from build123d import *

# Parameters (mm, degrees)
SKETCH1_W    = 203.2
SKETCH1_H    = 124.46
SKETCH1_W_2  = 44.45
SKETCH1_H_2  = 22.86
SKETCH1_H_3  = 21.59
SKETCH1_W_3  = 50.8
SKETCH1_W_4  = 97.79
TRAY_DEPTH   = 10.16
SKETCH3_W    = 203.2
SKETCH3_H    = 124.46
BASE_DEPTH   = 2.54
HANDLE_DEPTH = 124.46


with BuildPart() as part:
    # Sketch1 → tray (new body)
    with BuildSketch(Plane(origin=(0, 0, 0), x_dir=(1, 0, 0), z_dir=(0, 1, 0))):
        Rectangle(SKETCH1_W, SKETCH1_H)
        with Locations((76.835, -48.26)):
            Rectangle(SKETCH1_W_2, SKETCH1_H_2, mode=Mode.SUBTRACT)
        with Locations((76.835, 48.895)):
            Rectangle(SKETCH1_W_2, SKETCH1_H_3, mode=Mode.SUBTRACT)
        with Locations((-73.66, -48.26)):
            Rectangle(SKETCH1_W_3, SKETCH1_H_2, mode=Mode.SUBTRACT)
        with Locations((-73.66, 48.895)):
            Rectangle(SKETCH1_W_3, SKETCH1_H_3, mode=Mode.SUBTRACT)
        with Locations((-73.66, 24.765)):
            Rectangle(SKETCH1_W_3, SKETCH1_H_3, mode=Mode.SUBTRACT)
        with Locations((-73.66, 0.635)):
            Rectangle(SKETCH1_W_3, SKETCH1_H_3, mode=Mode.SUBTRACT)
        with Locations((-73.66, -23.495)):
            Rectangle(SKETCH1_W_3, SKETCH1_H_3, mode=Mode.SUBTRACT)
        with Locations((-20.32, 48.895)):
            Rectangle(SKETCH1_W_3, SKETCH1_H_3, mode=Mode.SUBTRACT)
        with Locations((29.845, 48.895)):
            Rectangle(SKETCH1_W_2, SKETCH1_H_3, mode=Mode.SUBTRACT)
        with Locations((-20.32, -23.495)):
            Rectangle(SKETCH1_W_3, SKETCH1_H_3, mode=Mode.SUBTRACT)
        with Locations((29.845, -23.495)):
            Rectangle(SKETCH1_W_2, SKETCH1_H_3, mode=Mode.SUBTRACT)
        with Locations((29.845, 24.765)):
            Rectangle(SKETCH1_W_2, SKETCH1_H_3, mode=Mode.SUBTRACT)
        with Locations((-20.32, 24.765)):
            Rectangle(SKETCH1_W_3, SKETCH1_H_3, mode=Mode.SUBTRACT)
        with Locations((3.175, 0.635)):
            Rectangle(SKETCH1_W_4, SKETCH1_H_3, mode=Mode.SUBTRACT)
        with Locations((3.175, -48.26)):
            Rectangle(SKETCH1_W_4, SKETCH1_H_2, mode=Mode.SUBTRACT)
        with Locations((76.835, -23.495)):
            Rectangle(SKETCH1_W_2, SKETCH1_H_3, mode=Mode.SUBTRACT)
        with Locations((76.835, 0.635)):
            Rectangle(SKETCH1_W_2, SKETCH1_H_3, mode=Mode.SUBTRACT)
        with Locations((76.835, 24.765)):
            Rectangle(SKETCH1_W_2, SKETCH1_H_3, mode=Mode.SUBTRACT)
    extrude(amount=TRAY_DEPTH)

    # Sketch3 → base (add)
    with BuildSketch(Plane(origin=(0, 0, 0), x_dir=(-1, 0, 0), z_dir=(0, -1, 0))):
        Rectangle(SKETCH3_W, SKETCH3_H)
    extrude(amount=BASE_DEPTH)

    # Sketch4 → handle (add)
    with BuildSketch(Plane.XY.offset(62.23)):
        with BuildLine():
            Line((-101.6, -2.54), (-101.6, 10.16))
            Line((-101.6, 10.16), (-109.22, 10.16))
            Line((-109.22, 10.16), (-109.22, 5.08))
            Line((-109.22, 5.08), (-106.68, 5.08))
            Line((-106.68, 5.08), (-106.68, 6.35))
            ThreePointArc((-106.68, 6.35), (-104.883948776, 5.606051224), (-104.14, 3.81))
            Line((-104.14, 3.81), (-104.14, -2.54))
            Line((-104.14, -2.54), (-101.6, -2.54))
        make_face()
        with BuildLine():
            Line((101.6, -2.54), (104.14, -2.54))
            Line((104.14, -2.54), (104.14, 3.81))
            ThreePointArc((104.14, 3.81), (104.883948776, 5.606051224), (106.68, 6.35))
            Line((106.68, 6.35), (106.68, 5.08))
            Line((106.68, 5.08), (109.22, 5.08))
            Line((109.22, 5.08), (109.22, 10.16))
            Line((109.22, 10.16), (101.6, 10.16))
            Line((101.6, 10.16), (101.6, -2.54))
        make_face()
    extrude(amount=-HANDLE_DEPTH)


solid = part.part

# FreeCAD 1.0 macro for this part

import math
import FreeCAD as App
import Part
import Sketcher

V = App.Vector
Q = App.Units.Quantity


def add_polygon(sketch, points):
    """Adds a closed chain of lines whose ends are joined by coincident constraints."""
    first, n = sketch.GeometryCount, len(points)
    for a, b in zip(points, points[1:] + points[:1]):
        sketch.addGeometry(Part.LineSegment(App.Vector(*a, 0), App.Vector(*b, 0)), False)
    for i in range(n):
        sketch.addConstraint(Sketcher.Constraint("Coincident", first + i, 2, first + (i + 1) % n, 1))

doc = App.newDocument("Part")
params = doc.addObject("Spreadsheet::Sheet", "Params")
for row, (alias, value) in enumerate([
    ("sketch1_width", "8 in"),
    ("sketch1_width2", "2 in"),
    ("sketch1_height", "4.9 in"),
    ("sketch1_height2", "0.9 in"),
    ("sketch1_width3", "3.85 in"),
    ("pad1_length", "0.4 in"),
    ("sketch2_width", "8 in"),
    ("sketch2_height", "4.9 in"),
    ("pad2_length", "0.1 in"),
    ("sketch3_radius", "0.1 in"),
    ("sketch3_width", "0.3 in"),
    ("sketch3_height", "0.5 in"),
    ("sketch3_height2", "0.2 in"),
    ("sketch3_height3", "0.05 in"),
    ("pad3_length", "4.9 in"),
], start=1):
    params.set(f"A{row}", alias)
    params.set(f"B{row}", "=" + value)
    params.setAlias(f"B{row}", alias)

body = doc.addObject("PartDesign::Body", "Body")

# Sketch on XZ plane
sketch1 = body.newObject("Sketcher::SketchObject", "Sketch")
sketch1.AttachmentSupport = (doc.getObject("XZ_Plane"), [""])
sketch1.MapMode = "FlatFace"
add_polygon(sketch1, [(-102, -62), (-102, 62), (102, 62), (102, -62)])  # lines 0-3
add_polygon(sketch1, [(-48, 60), (-99, 60), (-99, 37), (-48, 37)])  # lines 4-7
add_polygon(sketch1, [(-48, 34), (-99, 34), (-99, 13), (-48, 13)])  # lines 8-11
add_polygon(sketch1, [(5, 34), (-46, 34), (-46, 13), (5, 13)])  # lines 12-15
add_polygon(sketch1, [(52, 60), (-46, 60), (-46, 37), (52, 37)])  # lines 16-19
add_polygon(sketch1, [(99, 60), (55, 60), (55, 37), (99, 37)])  # lines 20-23
add_polygon(sketch1, [(52, 34), (8, 34), (8, 13), (52, 13)])  # lines 24-27
add_polygon(sketch1, [(99, 34), (55, 34), (55, 13), (99, 13)])  # lines 28-31
add_polygon(sketch1, [(-48, 10), (-99, 10), (-99, -11), (-48, -11)])  # lines 32-35
add_polygon(sketch1, [(-48, -14), (-99, -14), (-99, -36), (-48, -36)])  # lines 36-39
add_polygon(sketch1, [(5, -14), (-46, -14), (-46, -36), (5, -36)])  # lines 40-43
add_polygon(sketch1, [(-48, -38), (-99, -38), (-99, -60), (-48, -60)])  # lines 44-47
add_polygon(sketch1, [(5, -38), (-46, -38), (-46, -60), (5, -60)])  # lines 48-51
add_polygon(sketch1, [(52, 10), (-46, 10), (-46, -11), (52, -11)])  # lines 52-55
add_polygon(sketch1, [(52, -14), (8, -14), (8, -36), (52, -36)])  # lines 56-59
add_polygon(sketch1, [(99, 10), (55, 10), (55, -11), (99, -11)])  # lines 60-63
add_polygon(sketch1, [(99, -14), (55, -14), (55, -36), (99, -36)])  # lines 64-67
add_polygon(sketch1, [(52, -38), (8, -38), (8, -60), (52, -60)])  # lines 68-71
add_polygon(sketch1, [(99, -38), (55, -38), (55, -60), (99, -60)])  # lines 72-75
sketch1.addConstraint([
    Sketcher.Constraint("Vertical", 0),
    Sketcher.Constraint("Horizontal", 1),
    Sketcher.Constraint("Vertical", 2),
    Sketcher.Constraint("Horizontal", 3),
    Sketcher.Constraint("Horizontal", 4),
    Sketcher.Constraint("Vertical", 5),
    Sketcher.Constraint("Horizontal", 6),
    Sketcher.Constraint("Vertical", 7),
    Sketcher.Constraint("Horizontal", 8),
    Sketcher.Constraint("Vertical", 9),
    Sketcher.Constraint("Horizontal", 10),
    Sketcher.Constraint("Vertical", 11),
    Sketcher.Constraint("Horizontal", 12),
    Sketcher.Constraint("Vertical", 13),
    Sketcher.Constraint("Horizontal", 14),
    Sketcher.Constraint("Vertical", 15),
    Sketcher.Constraint("Horizontal", 16),
    Sketcher.Constraint("Vertical", 17),
    Sketcher.Constraint("Horizontal", 18),
    Sketcher.Constraint("Vertical", 19),
    Sketcher.Constraint("Horizontal", 20),
    Sketcher.Constraint("Vertical", 21),
    Sketcher.Constraint("Horizontal", 22),
    Sketcher.Constraint("Vertical", 23),
    Sketcher.Constraint("Horizontal", 24),
    Sketcher.Constraint("Vertical", 25),
    Sketcher.Constraint("Horizontal", 26),
    Sketcher.Constraint("Vertical", 27),
    Sketcher.Constraint("Horizontal", 28),
    Sketcher.Constraint("Vertical", 29),
    Sketcher.Constraint("Horizontal", 30),
    Sketcher.Constraint("Vertical", 31),
    Sketcher.Constraint("Horizontal", 32),
    Sketcher.Constraint("Vertical", 33),
    Sketcher.Constraint("Horizontal", 34),
    Sketcher.Constraint("Vertical", 35),
    Sketcher.Constraint("Horizontal", 36),
    Sketcher.Constraint("Vertical", 37),
    Sketcher.Constraint("Horizontal", 38),
    Sketcher.Constraint("Vertical", 39),
    Sketcher.Constraint("Horizontal", 40),
    Sketcher.Constraint("Vertical", 41),
    Sketcher.Constraint("Horizontal", 42),
    Sketcher.Constraint("Vertical", 43),
    Sketcher.Constraint("Horizontal", 44),
    Sketcher.Constraint("Vertical", 45),
    Sketcher.Constraint("Horizontal", 46),
    Sketcher.Constraint("Vertical", 47),
    Sketcher.Constraint("Horizontal", 48),
    Sketcher.Constraint("Vertical", 49),
    Sketcher.Constraint("Horizontal", 50),
    Sketcher.Constraint("Vertical", 51),
    Sketcher.Constraint("Horizontal", 52),
    Sketcher.Constraint("Vertical", 53),
    Sketcher.Constraint("Horizontal", 54),
    Sketcher.Constraint("Vertical", 55),
    Sketcher.Constraint("Horizontal", 56),
    Sketcher.Constraint("Vertical", 57),
    Sketcher.Constraint("Horizontal", 58),
    Sketcher.Constraint("Vertical", 59),
    Sketcher.Constraint("Horizontal", 60),
    Sketcher.Constraint("Vertical", 61),
    Sketcher.Constraint("Horizontal", 62),
    Sketcher.Constraint("Vertical", 63),
    Sketcher.Constraint("Horizontal", 64),
    Sketcher.Constraint("Vertical", 65),
    Sketcher.Constraint("Horizontal", 66),
    Sketcher.Constraint("Vertical", 67),
    Sketcher.Constraint("Horizontal", 68),
    Sketcher.Constraint("Vertical", 69),
    Sketcher.Constraint("Horizontal", 70),
    Sketcher.Constraint("Vertical", 71),
    Sketcher.Constraint("Horizontal", 72),
    Sketcher.Constraint("Vertical", 73),
    Sketcher.Constraint("Horizontal", 74),
    Sketcher.Constraint("Vertical", 75),
    Sketcher.Constraint("Symmetric", 0, 2, 2, 2, -1, 1),
    Sketcher.Constraint("Symmetric", 23, 2, 45, 2, -1, 1),
    Sketcher.Constraint("Symmetric", 4, 2, 74, 2, -1, 1),
    Sketcher.Constraint("Symmetric", 5, 2, 22, 2, -2),
    Sketcher.Constraint("Symmetric", 9, 2, 30, 2, -2),
    Sketcher.Constraint("Symmetric", 33, 2, 62, 2, -2),
    Sketcher.Constraint("Symmetric", 37, 2, 66, 2, -2),
    Sketcher.Constraint("Symmetric", 7, 2, 46, 2, -1),
    Sketcher.Constraint("Symmetric", 16, 2, 49, 2, -1),
    Sketcher.Constraint("Symmetric", 19, 2, 70, 2, -1),
    Sketcher.Constraint("Horizontal", 11, 2, 12, 2),
    Sketcher.Constraint("Horizontal", 10, 2, 13, 2),
    Sketcher.Constraint("Horizontal", 7, 2, 16, 2),
    Sketcher.Constraint("Horizontal", 6, 2, 17, 2),
    Sketcher.Constraint("Horizontal", 15, 2, 24, 2),
    Sketcher.Constraint("Horizontal", 14, 2, 25, 2),
    Sketcher.Constraint("Horizontal", 27, 2, 28, 2),
    Sketcher.Constraint("Horizontal", 39, 2, 40, 2),
    Sketcher.Constraint("Horizontal", 38, 2, 41, 2),
    Sketcher.Constraint("Horizontal", 47, 2, 48, 2),
    Sketcher.Constraint("Horizontal", 35, 2, 52, 2),
    Sketcher.Constraint("Horizontal", 34, 2, 53, 2),
    Sketcher.Constraint("Horizontal", 43, 2, 56, 2),
    Sketcher.Constraint("Horizontal", 42, 2, 57, 2),
    Sketcher.Constraint("Horizontal", 55, 2, 60, 2),
    Sketcher.Constraint("Horizontal", 59, 2, 64, 2),
    Sketcher.Constraint("Horizontal", 51, 2, 68, 2),
    Sketcher.Constraint("Horizontal", 71, 2, 72, 2),
    Sketcher.Constraint("Vertical", 5, 2, 8, 2),
    Sketcher.Constraint("Vertical", 7, 2, 10, 2),
    Sketcher.Constraint("Vertical", 13, 2, 16, 2),
    Sketcher.Constraint("Vertical", 19, 2, 26, 2),
    Sketcher.Constraint("Vertical", 21, 2, 28, 2),
    Sketcher.Constraint("Vertical", 9, 2, 32, 2),
    Sketcher.Constraint("Vertical", 11, 2, 34, 2),
    Sketcher.Constraint("Vertical", 33, 2, 36, 2),
    Sketcher.Constraint("Vertical", 35, 2, 38, 2),
    Sketcher.Constraint("Vertical", 17, 2, 40, 2),
    Sketcher.Constraint("Vertical", 15, 2, 42, 2),
    Sketcher.Constraint("Vertical", 43, 2, 50, 2),
    Sketcher.Constraint("Vertical", 49, 2, 52, 2),
    Sketcher.Constraint("Vertical", 27, 2, 54, 2),
    Sketcher.Constraint("Vertical", 25, 2, 56, 2),
    Sketcher.Constraint("Vertical", 55, 2, 58, 2),
    Sketcher.Constraint("Vertical", 29, 2, 60, 2),
    Sketcher.Constraint("Vertical", 61, 2, 64, 2),
    Sketcher.Constraint("Vertical", 57, 2, 68, 2),
    Sketcher.Constraint("Vertical", 65, 2, 72, 2),
    Sketcher.Constraint("Equal", 10, 12),
    Sketcher.Constraint("Equal", 22, 24),
    Sketcher.Constraint("Equal", 31, 33),
    Sketcher.Constraint("Equal", 35, 37),
    Sketcher.Constraint("Equal", 43, 45),
    Sketcher.Constraint("DistanceX", 1, 1, 1, 2, Q("8 in")),
    Sketcher.Constraint("DistanceX", 4, 2, 4, 1, Q("2 in")),
    Sketcher.Constraint("DistanceY", 0, 1, 0, 2, Q("4.9 in")),
    Sketcher.Constraint("DistanceY", 5, 2, 5, 1, Q("0.9 in")),
    Sketcher.Constraint("DistanceX", 16, 2, 16, 1, Q("3.85 in")),
    Sketcher.Constraint("DistanceX", 20, 2, 20, 1, Q("1.75 in")),
    Sketcher.Constraint("DistanceY", 9, 2, 9, 1, Q("0.85 in")),
    Sketcher.Constraint("DistanceX", 4, 2, -1, 1, Q("3.9 in")),
    Sketcher.Constraint("DistanceY", -1, 1, 9, 2, Q("0.5 in")),
    Sketcher.Constraint("DistanceX", 12, 2, -1, 1, Q("1.8 in")),
    Sketcher.Constraint("DistanceY", -1, 1, 32, 2, Q("0.4 in")),
    Sketcher.Constraint("DistanceY", 37, 2, -1, 1, Q("1.4 in")),
    Sketcher.Constraint("DistanceY", 44, 2, -1, 1, Q("1.5 in")),
])
sketch1.setExpression("Constraints[205]", "Params.sketch1_width")
sketch1.setExpression("Constraints[206]", "Params.sketch1_width2")
sketch1.setExpression("Constraints[207]", "Params.sketch1_height")
sketch1.setExpression("Constraints[208]", "Params.sketch1_height2")
sketch1.setExpression("Constraints[209]", "Params.sketch1_width3")
pad1 = body.newObject("PartDesign::Pad", "Pad")
pad1.Profile = sketch1
pad1.setExpression("Length", "Params.pad1_length")
pad1.Reversed = True

# Sketch on XZ plane
sketch2 = body.newObject("Sketcher::SketchObject", "Sketch001")
sketch2.AttachmentSupport = (doc.getObject("XZ_Plane"), [""])
sketch2.MapMode = "FlatFace"
add_polygon(sketch2, [(102, -62), (102, 62), (-102, 62), (-102, -62)])  # lines 0-3
sketch2.addConstraint([
    Sketcher.Constraint("Vertical", 0),
    Sketcher.Constraint("Horizontal", 1),
    Sketcher.Constraint("Vertical", 2),
    Sketcher.Constraint("Horizontal", 3),
    Sketcher.Constraint("Symmetric", 0, 2, 2, 2, -1, 1),
    Sketcher.Constraint("DistanceX", 1, 2, 1, 1, Q("8 in")),
    Sketcher.Constraint("DistanceY", 0, 1, 0, 2, Q("4.9 in")),
])
sketch2.setExpression("Constraints[9]", "Params.sketch2_width")
sketch2.setExpression("Constraints[10]", "Params.sketch2_height")
pad2 = body.newObject("PartDesign::Pad", "Pad001")
pad2.Profile = sketch2
pad2.setExpression("Length", "Params.pad2_length")

# Sketch on XY plane
sketch3 = body.newObject("Sketcher::SketchObject", "Sketch002")
sketch3.AttachmentSupport = (doc.getObject("XY_Plane"), [""])
sketch3.MapMode = "FlatFace"
sketch3.AttachmentOffset = App.Placement(V(0, 0, 2.45 * 25.4), App.Rotation())
sketch3.addGeometry([
    Part.LineSegment(V(-101.6, -2.5, 0), V(-101.6, 10.2, 0)),  # 0
    Part.LineSegment(V(-101.6, 10.2, 0), V(-109.2, 10.2, 0)),  # 1
    Part.LineSegment(V(-109.2, 10.2, 0), V(-109.2, 5.1, 0)),  # 2
    Part.LineSegment(V(-109.2, 5.1, 0), V(-106.7, 5.1, 0)),  # 3
    Part.LineSegment(V(-106.7, 5.1, 0), V(-106.7, 6.3, 0)),  # 4
    Part.ArcOfCircle(Part.Circle(V(-106.7, 3.8, 0), V(0, 0, 1), 2.5), math.radians(0), math.radians(90)),  # 5
    Part.LineSegment(V(-104.1, 3.8, 0), V(-104.1, -2.5, 0)),  # 6
    Part.LineSegment(V(-104.1, -2.5, 0), V(-101.6, -2.5, 0)),  # 7
    Part.LineSegment(V(101.6, -2.5, 0), V(104.1, -2.5, 0)),  # 8
    Part.LineSegment(V(104.1, -2.5, 0), V(104.1, 3.8, 0)),  # 9
    Part.ArcOfCircle(Part.Circle(V(106.7, 3.8, 0), V(0, 0, 1), 2.5), math.radians(90), math.radians(180)),  # 10
    Part.LineSegment(V(106.7, 6.3, 0), V(106.7, 5.1, 0)),  # 11
    Part.LineSegment(V(106.7, 5.1, 0), V(109.2, 5.1, 0)),  # 12
    Part.LineSegment(V(109.2, 5.1, 0), V(109.2, 10.2, 0)),  # 13
    Part.LineSegment(V(109.2, 10.2, 0), V(101.6, 10.2, 0)),  # 14
    Part.LineSegment(V(101.6, 10.2, 0), V(101.6, -2.5, 0)),  # 15
], False)
sketch3.addConstraint([
    Sketcher.Constraint("Coincident", 0, 2, 1, 1),
    Sketcher.Constraint("Coincident", 1, 2, 2, 1),
    Sketcher.Constraint("Coincident", 2, 2, 3, 1),
    Sketcher.Constraint("Coincident", 3, 2, 4, 1),
    Sketcher.Constraint("Coincident", 4, 2, 5, 2),
    Sketcher.Constraint("Tangent", 5, 1, 6, 1),
    Sketcher.Constraint("Coincident", 6, 2, 7, 1),
    Sketcher.Constraint("Coincident", 7, 2, 0, 1),
    Sketcher.Constraint("Coincident", 8, 2, 9, 1),
    Sketcher.Constraint("Tangent", 9, 2, 10, 2),
    Sketcher.Constraint("Coincident", 10, 1, 11, 1),
    Sketcher.Constraint("Coincident", 11, 2, 12, 1),
    Sketcher.Constraint("Coincident", 12, 2, 13, 1),
    Sketcher.Constraint("Coincident", 13, 2, 14, 1),
    Sketcher.Constraint("Coincident", 14, 2, 15, 1),
    Sketcher.Constraint("Coincident", 15, 2, 8, 1),
    Sketcher.Constraint("Vertical", 0),
    Sketcher.Constraint("Horizontal", 1),
    Sketcher.Constraint("Vertical", 2),
    Sketcher.Constraint("Horizontal", 3),
    Sketcher.Constraint("Vertical", 4),
    Sketcher.Constraint("Vertical", 6),
    Sketcher.Constraint("Horizontal", 7),
    Sketcher.Constraint("Horizontal", 8),
    Sketcher.Constraint("Vertical", 9),
    Sketcher.Constraint("Vertical", 11),
    Sketcher.Constraint("Horizontal", 12),
    Sketcher.Constraint("Vertical", 13),
    Sketcher.Constraint("Horizontal", 14),
    Sketcher.Constraint("Vertical", 15),
    Sketcher.Constraint("Equal", 5, 10),
    Sketcher.Constraint("Symmetric", 5, 3, 10, 3, -2),
    Sketcher.Constraint("Symmetric", 3, 2, 11, 2, -2),
    Sketcher.Constraint("Symmetric", 1, 2, 13, 2, -2),
    Sketcher.Constraint("Symmetric", 7, 2, 15, 2, -2),
    Sketcher.Constraint("Vertical", 5, 3, 3, 2),
    Sketcher.Constraint("Equal", 3, 7),
    Sketcher.Constraint("Radius", 5, Q("0.1 in")),
    Sketcher.Constraint("DistanceX", 1, 2, 1, 1, Q("0.3 in")),
    Sketcher.Constraint("DistanceY", 0, 1, 0, 2, Q("0.5 in")),
    Sketcher.Constraint("DistanceY", 2, 2, 2, 1, Q("0.2 in")),
    Sketcher.Constraint("DistanceX", 0, 2, -1, 1, Q("4 in")),
    Sketcher.Constraint("DistanceY", 4, 1, 4, 2, Q("0.05 in")),
    Sketcher.Constraint("DistanceY", -1, 1, 0, 2, Q("0.4 in")),
])
sketch3.setExpression("Constraints[37]", "Params.sketch3_radius")
sketch3.setExpression("Constraints[38]", "Params.sketch3_width")
sketch3.setExpression("Constraints[39]", "Params.sketch3_height")
sketch3.setExpression("Constraints[40]", "Params.sketch3_height2")
sketch3.setExpression("Constraints[42]", "Params.sketch3_height3")
pad3 = body.newObject("PartDesign::Pad", "Pad002")
pad3.Profile = sketch3
pad3.setExpression("Length", "Params.pad3_length")
pad3.Reversed = True

doc.recompute()
